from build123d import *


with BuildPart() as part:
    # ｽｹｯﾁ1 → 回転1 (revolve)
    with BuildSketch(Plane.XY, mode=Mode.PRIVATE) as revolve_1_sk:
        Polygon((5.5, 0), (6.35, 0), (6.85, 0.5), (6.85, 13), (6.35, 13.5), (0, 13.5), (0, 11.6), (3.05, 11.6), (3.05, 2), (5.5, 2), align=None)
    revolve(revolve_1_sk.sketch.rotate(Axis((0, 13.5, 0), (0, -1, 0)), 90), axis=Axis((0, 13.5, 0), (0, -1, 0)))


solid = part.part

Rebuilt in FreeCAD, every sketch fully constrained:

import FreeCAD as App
import Part
import Sketcher
from FreeCAD import Vector
Q = App.Units.Quantity


def add_polygon(sketch, points):
    """Adds a closed chain of lines whose ends are joined by coincident constraints."""
    first, n = sketch.GeometryCount, len(points)
    for a, b in zip(points, points[1:] + points[:1]):
        sketch.addGeometry(Part.LineSegment(App.Vector(*a, 0), App.Vector(*b, 0)), False)
    for i in range(n):
        sketch.addConstraint(Sketcher.Constraint("Coincident", first + i, 2, first + (i + 1) % n, 1))

doc = App.newDocument("Part")
params = doc.addObject("Spreadsheet::Sheet", "Params")
for row, (alias, value) in enumerate([
    ("sketch1_height", "2 mm"),
    ("sketch1_height2", "12.5 mm"),
    ("sketch1_height3", "1.9 mm"),
    ("sketch1_height4", "9.6 mm"),
    ("sketch1_width", "0.85 mm"),
    ("revolution_angle", "360 deg"),
], start=1):
    params.set(f"A{row}", alias)
    params.set(f"B{row}", "=" + value)
    params.setAlias(f"B{row}", alias)

body = doc.addObject("PartDesign::Body", "Body")

# Sketch on XY plane
sketch1 = body.newObject("Sketcher::SketchObject", "Sketch")
sketch1.AttachmentSupport = (doc.getObject("XY_Plane"), [""])
sketch1.MapMode = "FlatFace"
add_polygon(sketch1, [(5.5, 0), (6.3, 0), (6.8, 0.5), (6.8, 13), (6.3, 13.5), (0, 13.5), (0, 11.6), (3, 11.6), (3, 2), (5.5, 2)])  # lines 0-9
sketch1.addConstraint(Sketcher.Constraint("Horizontal", 0))
sketch1.addConstraint(Sketcher.Constraint("Vertical", 2))
sketch1.addConstraint(Sketcher.Constraint("Horizontal", 4))
sketch1.addConstraint(Sketcher.Constraint("Vertical", 5))
sketch1.addConstraint(Sketcher.Constraint("Horizontal", 6))
sketch1.addConstraint(Sketcher.Constraint("Vertical", 7))
sketch1.addConstraint(Sketcher.Constraint("Horizontal", 8))
sketch1.addConstraint(Sketcher.Constraint("Vertical", 9))
sketch1.addConstraint(Sketcher.Constraint("PointOnObject", 0, 2, -1))
sketch1.addConstraint(Sketcher.Constraint("PointOnObject", 4, 2, -2))
sketch1.addConstraint(Sketcher.Constraint("Perpendicular", 1, 3))
sketch1.addConstraint(Sketcher.Constraint("Vertical", 0, 2, 3, 2))
sketch1.addConstraint(Sketcher.Constraint("Equal", 1, 3))
sketch1.addConstraint(Sketcher.Constraint("DistanceY", 9, 2, 9, 1, Q("2 mm")))
sketch1.addConstraint(Sketcher.Constraint("DistanceY", 2, 1, 2, 2, Q("12.5 mm")))
sketch1.addConstraint(Sketcher.Constraint("DistanceY", 5, 2, 5, 1, Q("1.9 mm")))
sketch1.addConstraint(Sketcher.Constraint("DistanceY", 7, 2, 7, 1, Q("9.6 mm")))
sketch1.addConstraint(Sketcher.Constraint("DistanceX", 0, 1, 0, 2, Q("0.85 mm")))
sketch1.addConstraint(Sketcher.Constraint("DistanceX", 4, 2, 4, 1, Q("6.35 mm")))
sketch1.addConstraint(Sketcher.Constraint("DistanceX", 6, 1, 6, 2, Q("3.05 mm")))
sketch1.setExpression("Constraints[23]", "Params.sketch1_height")
sketch1.setExpression("Constraints[24]", "Params.sketch1_height2")
sketch1.setExpression("Constraints[25]", "Params.sketch1_height3")
sketch1.setExpression("Constraints[26]", "Params.sketch1_height4")
sketch1.setExpression("Constraints[27]", "Params.sketch1_width")
revolution = body.newObject("PartDesign::Revolution", "Revolution")
revolution.Profile = sketch1
revolution.ReferenceAxis = (sketch1, ["V_Axis"])
revolution.setExpression("Angle", "Params.revolution_angle")

doc.recompute()
